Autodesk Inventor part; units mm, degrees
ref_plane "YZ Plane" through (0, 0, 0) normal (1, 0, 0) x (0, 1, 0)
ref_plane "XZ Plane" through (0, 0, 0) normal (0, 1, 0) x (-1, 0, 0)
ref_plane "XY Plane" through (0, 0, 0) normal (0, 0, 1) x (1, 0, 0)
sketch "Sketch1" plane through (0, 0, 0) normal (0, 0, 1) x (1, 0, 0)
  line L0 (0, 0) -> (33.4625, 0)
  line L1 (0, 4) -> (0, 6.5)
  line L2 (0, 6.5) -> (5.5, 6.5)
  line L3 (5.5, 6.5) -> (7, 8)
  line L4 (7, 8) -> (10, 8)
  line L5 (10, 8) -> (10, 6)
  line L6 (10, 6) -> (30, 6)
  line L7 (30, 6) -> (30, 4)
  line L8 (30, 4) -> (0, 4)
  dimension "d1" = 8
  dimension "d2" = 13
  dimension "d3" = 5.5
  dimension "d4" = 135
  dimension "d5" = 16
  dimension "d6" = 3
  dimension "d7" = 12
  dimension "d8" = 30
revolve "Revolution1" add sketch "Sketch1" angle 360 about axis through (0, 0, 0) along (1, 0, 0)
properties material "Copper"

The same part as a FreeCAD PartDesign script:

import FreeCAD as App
import Part
import Sketcher
Q = App.Units.Quantity

doc = App.newDocument("Part")
body = doc.addObject("PartDesign::Body", "Body")

sketch1 = doc.addObject("Sketcher::SketchObject", "Sketch")
body.addObject(sketch1)
sketch1.AttachmentSupport = (doc.XY_Plane, [""])
sketch1.MapMode = "FlatFace"
sketch1.addGeometry([
    Part.LineSegment(App.Vector(0, 6.5, 0), App.Vector(0, 4, 0)),
    Part.LineSegment(App.Vector(0, 4, 0), App.Vector(30, 4, 0)),
    Part.LineSegment(App.Vector(30, 4, 0), App.Vector(30, 6, 0)),
    Part.LineSegment(App.Vector(30, 6, 0), App.Vector(10, 6, 0)),
    Part.LineSegment(App.Vector(10, 6, 0), App.Vector(10, 8, 0)),
    Part.LineSegment(App.Vector(10, 8, 0), App.Vector(7, 8, 0)),
    Part.LineSegment(App.Vector(7, 8, 0), App.Vector(5.5, 6.5, 0)),
    Part.LineSegment(App.Vector(5.5, 6.5, 0), App.Vector(0, 6.5, 0)),
], False)
sketch1.addConstraint([
    Sketcher.Constraint("Coincident", 0, 2, 1, 1),
    Sketcher.Constraint("Coincident", 1, 2, 2, 1),
    Sketcher.Constraint("Coincident", 2, 2, 3, 1),
    Sketcher.Constraint("Coincident", 3, 2, 4, 1),
    Sketcher.Constraint("Coincident", 4, 2, 5, 1),
    Sketcher.Constraint("Coincident", 5, 2, 6, 1),
    Sketcher.Constraint("Coincident", 6, 2, 7, 1),
    Sketcher.Constraint("Coincident", 7, 2, 0, 1),
    Sketcher.Constraint("Vertical", 0),
    Sketcher.Constraint("Horizontal", 1),
    Sketcher.Constraint("Vertical", 2),
    Sketcher.Constraint("Horizontal", 3),
    Sketcher.Constraint("Vertical", 4),
    Sketcher.Constraint("Horizontal", 5),
    Sketcher.Constraint("Horizontal", 7),
    Sketcher.Constraint("PointOnObject", 0, 2, -2),
    Sketcher.Constraint("Equal", 2, 4),
    Sketcher.Constraint("DistanceX", 1, 1, 1, 2, Q("30 mm")),
    Sketcher.Constraint("DistanceX", 5, 2, 5, 1, Q("3 mm")),
    Sketcher.Constraint("Angle", 6, Q("-135 deg")),
    Sketcher.Constraint("DistanceX", 7, 2, 7, 1, Q("5.5 mm")),
    Sketcher.Constraint("DistanceY", -1, 1, 4, 2, Q("8 mm")),
    Sketcher.Constraint("DistanceX", 3, 2, 3, 1, Q("20 mm")),
    Sketcher.Constraint("DistanceY", 2, 1, 2, 2, Q("2 mm")),
])
revolution = doc.addObject("PartDesign::Revolution", "Revolution")
body.addObject(revolution)
revolution.Profile = sketch1
revolution.ReferenceAxis = (sketch1, ["H_Axis"])
revolution.Angle = 360

doc.recompute()
